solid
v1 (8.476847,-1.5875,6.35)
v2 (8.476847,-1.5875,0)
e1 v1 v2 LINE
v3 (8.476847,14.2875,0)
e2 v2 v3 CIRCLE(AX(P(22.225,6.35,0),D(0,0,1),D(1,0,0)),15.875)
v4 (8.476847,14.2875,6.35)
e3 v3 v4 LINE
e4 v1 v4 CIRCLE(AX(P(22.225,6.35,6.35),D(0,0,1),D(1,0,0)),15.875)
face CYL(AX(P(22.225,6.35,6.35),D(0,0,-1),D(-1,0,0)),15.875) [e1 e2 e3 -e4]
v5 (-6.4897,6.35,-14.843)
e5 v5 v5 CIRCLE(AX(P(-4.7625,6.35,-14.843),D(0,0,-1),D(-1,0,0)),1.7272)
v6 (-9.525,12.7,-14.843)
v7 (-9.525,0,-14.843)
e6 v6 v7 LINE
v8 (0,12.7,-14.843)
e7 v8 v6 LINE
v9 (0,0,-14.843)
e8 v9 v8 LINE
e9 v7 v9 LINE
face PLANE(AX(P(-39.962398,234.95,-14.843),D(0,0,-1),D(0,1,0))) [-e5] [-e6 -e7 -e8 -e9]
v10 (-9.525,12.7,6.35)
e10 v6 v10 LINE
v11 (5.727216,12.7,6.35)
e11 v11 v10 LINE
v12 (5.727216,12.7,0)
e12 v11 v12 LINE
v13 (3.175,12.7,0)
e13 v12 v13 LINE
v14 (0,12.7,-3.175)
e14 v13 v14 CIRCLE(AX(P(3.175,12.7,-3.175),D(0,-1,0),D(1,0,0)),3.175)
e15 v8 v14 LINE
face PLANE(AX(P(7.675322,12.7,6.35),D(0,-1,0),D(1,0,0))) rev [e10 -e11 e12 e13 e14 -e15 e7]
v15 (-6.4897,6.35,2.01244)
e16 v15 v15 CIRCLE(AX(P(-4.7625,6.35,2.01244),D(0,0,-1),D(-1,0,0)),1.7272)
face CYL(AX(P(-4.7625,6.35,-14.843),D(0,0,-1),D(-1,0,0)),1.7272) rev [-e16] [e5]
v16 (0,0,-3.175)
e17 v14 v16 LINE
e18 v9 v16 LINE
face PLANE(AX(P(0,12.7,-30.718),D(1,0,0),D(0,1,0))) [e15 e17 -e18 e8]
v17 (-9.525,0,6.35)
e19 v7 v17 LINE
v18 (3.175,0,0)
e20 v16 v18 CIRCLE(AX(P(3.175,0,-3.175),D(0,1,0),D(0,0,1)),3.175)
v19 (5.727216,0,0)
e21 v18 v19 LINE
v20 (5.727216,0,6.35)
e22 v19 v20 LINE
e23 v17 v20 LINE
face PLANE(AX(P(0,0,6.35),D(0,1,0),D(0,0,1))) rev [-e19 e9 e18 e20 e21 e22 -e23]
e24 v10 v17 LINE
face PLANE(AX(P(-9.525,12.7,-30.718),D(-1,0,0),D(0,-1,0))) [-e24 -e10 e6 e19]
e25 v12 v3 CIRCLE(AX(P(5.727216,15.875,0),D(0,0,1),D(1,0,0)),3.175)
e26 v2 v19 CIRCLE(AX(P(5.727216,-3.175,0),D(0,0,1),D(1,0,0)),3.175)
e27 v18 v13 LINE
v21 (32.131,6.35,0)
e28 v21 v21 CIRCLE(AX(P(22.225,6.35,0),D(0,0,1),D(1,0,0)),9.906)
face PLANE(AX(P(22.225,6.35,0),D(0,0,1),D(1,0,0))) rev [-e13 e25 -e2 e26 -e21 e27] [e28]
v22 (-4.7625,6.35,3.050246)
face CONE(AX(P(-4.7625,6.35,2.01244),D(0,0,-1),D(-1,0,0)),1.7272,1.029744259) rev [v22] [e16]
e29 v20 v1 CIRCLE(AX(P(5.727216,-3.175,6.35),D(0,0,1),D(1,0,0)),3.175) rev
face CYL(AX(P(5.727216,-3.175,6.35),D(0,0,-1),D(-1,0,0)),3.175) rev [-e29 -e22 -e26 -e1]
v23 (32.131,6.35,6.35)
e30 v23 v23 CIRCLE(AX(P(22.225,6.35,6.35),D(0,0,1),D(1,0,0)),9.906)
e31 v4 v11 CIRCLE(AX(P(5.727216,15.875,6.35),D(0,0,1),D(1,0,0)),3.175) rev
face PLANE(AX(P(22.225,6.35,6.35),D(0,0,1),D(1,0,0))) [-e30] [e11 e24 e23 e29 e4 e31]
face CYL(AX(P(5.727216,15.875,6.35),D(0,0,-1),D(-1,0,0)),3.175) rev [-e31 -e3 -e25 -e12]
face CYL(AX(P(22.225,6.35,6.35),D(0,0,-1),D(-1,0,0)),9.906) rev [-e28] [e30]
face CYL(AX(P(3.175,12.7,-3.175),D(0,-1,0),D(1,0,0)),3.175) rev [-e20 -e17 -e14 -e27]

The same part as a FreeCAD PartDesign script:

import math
import FreeCAD as App
import Part
import Sketcher
from FreeCAD import Vector
Q = App.Units.Quantity


def edges_at(feature, points):
    """Names of the edges that pass closest to the given points."""
    edges = feature.Shape.Edges
    near = lambda p: min(range(len(edges)), key=lambda i: edges[i].distToShape(Part.Vertex(*p))[0])
    return sorted({f"Edge{near(p) + 1}" for p in points})

doc = App.newDocument("Part")
body = doc.addObject("PartDesign::Body", "Body")

# Sketch on XY plane
sketch1 = body.newObject("Sketcher::SketchObject", "Sketch")
sketch1.AttachmentSupport = (doc.getObject("XY_Plane"), [""])
sketch1.MapMode = "FlatFace"
sketch1.addGeometry(Part.LineSegment(Vector(8, 13, 0), Vector(0, 13, 0)), False)
sketch1.addGeometry(Part.LineSegment(Vector(0, 13, 0), Vector(0, 0, 0)), False)
sketch1.addGeometry(Part.LineSegment(Vector(0, 0, 0), Vector(8, 0, 0)), False)
sketch1.addGeometry(Part.ArcOfCircle(Part.Circle(Vector(22, 6, 0), Vector(0, 0, 1), 16), math.radians(-156), math.radians(156)), False)
sketch1.addGeometry(Part.Circle(Vector(22, 6, 0), Vector(0, 0, 1), 10), False)
sketch1.addConstraint(Sketcher.Constraint("Coincident", 0, 2, 1, 1))
sketch1.addConstraint(Sketcher.Constraint("Coincident", 1, 2, 2, 1))
sketch1.addConstraint(Sketcher.Constraint("Coincident", 2, 2, 3, 1))
sketch1.addConstraint(Sketcher.Constraint("Coincident", 3, 2, 0, 1))
sketch1.addConstraint(Sketcher.Constraint("Horizontal", 0))
sketch1.addConstraint(Sketcher.Constraint("Vertical", 1))
sketch1.addConstraint(Sketcher.Constraint("Horizontal", 2))
sketch1.addConstraint(Sketcher.Constraint("Coincident", 1, 2, -1, 1))
sketch1.addConstraint(Sketcher.Constraint("Coincident", 4, 3, 3, 3))
sketch1.addConstraint(Sketcher.Constraint("Vertical", 2, 2, 3, 2))
sketch1.addConstraint(Sketcher.Constraint("Diameter", 4, Q("0.78 in")))
sketch1.addConstraint(Sketcher.Constraint("DistanceY", 1, 2, 1, 1, Q("0.5 in")))
sketch1.addConstraint(Sketcher.Constraint("Radius", 3, Q("0.625 in")))
sketch1.addConstraint(Sketcher.Constraint("DistanceX", -1, 1, 3, 3, Q("0.875 in")))
pad1 = body.newObject("PartDesign::Pad", "Pad")
pad1.Profile = sketch1
pad1.Length = Q("0.25 in")

# Sketch on XY plane
sketch2 = body.newObject("Sketcher::SketchObject", "Sketch001")
sketch2.AttachmentSupport = (doc.getObject("XY_Plane"), [""])
sketch2.MapMode = "FlatFace"
sketch2.AttachmentOffset = App.Placement(Vector(0, 0, 0.25 * 25.4), App.Rotation())
sketch2.addGeometry(Part.LineSegment(Vector(-10, 13, 0), Vector(-10, 0, 0)), False)
sketch2.addGeometry(Part.LineSegment(Vector(-10, 0, 0), Vector(0, 0, 0)), False)
sketch2.addGeometry(Part.LineSegment(Vector(0, 0, 0), Vector(0, 13, 0)), False)
sketch2.addGeometry(Part.LineSegment(Vector(0, 13, 0), Vector(-10, 13, 0)), False)
sketch2.addConstraint(Sketcher.Constraint("Coincident", 0, 2, 1, 1))
sketch2.addConstraint(Sketcher.Constraint("Coincident", 1, 2, 2, 1))
sketch2.addConstraint(Sketcher.Constraint("Coincident", 2, 2, 3, 1))
sketch2.addConstraint(Sketcher.Constraint("Coincident", 3, 2, 0, 1))
sketch2.addConstraint(Sketcher.Constraint("Vertical", 0))
sketch2.addConstraint(Sketcher.Constraint("Horizontal", 1))
sketch2.addConstraint(Sketcher.Constraint("Vertical", 2))
sketch2.addConstraint(Sketcher.Constraint("Horizontal", 3))
sketch2.addConstraint(Sketcher.Constraint("Coincident", 1, 2, -1, 1))
sketch2.addConstraint(Sketcher.Constraint("DistanceY", 0, 2, 0, 1, Q("0.5 in")))
sketch2.addConstraint(Sketcher.Constraint("DistanceX", 1, 1, 1, 2, Q("0.375 in")))
pad2 = body.newObject("PartDesign::Pad", "Pad001")
pad2.Profile = sketch2
pad2.Length = 21.193
pad2.Reversed = True

# Sketch on XY plane
sketch3 = body.newObject("Sketcher::SketchObject", "Sketch002")
sketch3.AttachmentSupport = (doc.getObject("XY_Plane"), [""])
sketch3.MapMode = "FlatFace"
sketch3.AttachmentOffset = App.Placement(Vector(0, 0, -14.843), App.Rotation())
sketch3.addGeometry(Part.Circle(Vector(-4.8, 6.3, 0), Vector(0, 0, 1), 1.7), False)
sketch3.addConstraint(Sketcher.Constraint("Diameter", 0, Q("0.136 in")))
sketch3.addConstraint(Sketcher.Constraint("DistanceY", -1, 1, 0, 3, Q("0.25 in")))
sketch3.addConstraint(Sketcher.Constraint("DistanceX", 0, 3, -1, 1, Q("0.1875 in")))
doc.recompute()
hole = body.newObject("PartDesign::Hole", "Hole")
hole.Profile = sketch3
hole.ThreadType = "None"
hole.Diameter = Q("0.136 in")
hole.DepthType = "Dimension"
hole.Depth = Q("0.6636 in")
hole.DrillPoint = "Angled"
hole.DrillPointAngle = 118
hole.Reversed = True
doc.recompute()

fillet = body.newObject("PartDesign::Fillet", "Fillet")
fillet.Base = (hole, edges_at(hole, [(0, 6.35, 0), (7.675, 12.7, 3.175), (7.675, 0, 3.175)]))
fillet.Radius = Q("0.125 in")

doc.recompute()
